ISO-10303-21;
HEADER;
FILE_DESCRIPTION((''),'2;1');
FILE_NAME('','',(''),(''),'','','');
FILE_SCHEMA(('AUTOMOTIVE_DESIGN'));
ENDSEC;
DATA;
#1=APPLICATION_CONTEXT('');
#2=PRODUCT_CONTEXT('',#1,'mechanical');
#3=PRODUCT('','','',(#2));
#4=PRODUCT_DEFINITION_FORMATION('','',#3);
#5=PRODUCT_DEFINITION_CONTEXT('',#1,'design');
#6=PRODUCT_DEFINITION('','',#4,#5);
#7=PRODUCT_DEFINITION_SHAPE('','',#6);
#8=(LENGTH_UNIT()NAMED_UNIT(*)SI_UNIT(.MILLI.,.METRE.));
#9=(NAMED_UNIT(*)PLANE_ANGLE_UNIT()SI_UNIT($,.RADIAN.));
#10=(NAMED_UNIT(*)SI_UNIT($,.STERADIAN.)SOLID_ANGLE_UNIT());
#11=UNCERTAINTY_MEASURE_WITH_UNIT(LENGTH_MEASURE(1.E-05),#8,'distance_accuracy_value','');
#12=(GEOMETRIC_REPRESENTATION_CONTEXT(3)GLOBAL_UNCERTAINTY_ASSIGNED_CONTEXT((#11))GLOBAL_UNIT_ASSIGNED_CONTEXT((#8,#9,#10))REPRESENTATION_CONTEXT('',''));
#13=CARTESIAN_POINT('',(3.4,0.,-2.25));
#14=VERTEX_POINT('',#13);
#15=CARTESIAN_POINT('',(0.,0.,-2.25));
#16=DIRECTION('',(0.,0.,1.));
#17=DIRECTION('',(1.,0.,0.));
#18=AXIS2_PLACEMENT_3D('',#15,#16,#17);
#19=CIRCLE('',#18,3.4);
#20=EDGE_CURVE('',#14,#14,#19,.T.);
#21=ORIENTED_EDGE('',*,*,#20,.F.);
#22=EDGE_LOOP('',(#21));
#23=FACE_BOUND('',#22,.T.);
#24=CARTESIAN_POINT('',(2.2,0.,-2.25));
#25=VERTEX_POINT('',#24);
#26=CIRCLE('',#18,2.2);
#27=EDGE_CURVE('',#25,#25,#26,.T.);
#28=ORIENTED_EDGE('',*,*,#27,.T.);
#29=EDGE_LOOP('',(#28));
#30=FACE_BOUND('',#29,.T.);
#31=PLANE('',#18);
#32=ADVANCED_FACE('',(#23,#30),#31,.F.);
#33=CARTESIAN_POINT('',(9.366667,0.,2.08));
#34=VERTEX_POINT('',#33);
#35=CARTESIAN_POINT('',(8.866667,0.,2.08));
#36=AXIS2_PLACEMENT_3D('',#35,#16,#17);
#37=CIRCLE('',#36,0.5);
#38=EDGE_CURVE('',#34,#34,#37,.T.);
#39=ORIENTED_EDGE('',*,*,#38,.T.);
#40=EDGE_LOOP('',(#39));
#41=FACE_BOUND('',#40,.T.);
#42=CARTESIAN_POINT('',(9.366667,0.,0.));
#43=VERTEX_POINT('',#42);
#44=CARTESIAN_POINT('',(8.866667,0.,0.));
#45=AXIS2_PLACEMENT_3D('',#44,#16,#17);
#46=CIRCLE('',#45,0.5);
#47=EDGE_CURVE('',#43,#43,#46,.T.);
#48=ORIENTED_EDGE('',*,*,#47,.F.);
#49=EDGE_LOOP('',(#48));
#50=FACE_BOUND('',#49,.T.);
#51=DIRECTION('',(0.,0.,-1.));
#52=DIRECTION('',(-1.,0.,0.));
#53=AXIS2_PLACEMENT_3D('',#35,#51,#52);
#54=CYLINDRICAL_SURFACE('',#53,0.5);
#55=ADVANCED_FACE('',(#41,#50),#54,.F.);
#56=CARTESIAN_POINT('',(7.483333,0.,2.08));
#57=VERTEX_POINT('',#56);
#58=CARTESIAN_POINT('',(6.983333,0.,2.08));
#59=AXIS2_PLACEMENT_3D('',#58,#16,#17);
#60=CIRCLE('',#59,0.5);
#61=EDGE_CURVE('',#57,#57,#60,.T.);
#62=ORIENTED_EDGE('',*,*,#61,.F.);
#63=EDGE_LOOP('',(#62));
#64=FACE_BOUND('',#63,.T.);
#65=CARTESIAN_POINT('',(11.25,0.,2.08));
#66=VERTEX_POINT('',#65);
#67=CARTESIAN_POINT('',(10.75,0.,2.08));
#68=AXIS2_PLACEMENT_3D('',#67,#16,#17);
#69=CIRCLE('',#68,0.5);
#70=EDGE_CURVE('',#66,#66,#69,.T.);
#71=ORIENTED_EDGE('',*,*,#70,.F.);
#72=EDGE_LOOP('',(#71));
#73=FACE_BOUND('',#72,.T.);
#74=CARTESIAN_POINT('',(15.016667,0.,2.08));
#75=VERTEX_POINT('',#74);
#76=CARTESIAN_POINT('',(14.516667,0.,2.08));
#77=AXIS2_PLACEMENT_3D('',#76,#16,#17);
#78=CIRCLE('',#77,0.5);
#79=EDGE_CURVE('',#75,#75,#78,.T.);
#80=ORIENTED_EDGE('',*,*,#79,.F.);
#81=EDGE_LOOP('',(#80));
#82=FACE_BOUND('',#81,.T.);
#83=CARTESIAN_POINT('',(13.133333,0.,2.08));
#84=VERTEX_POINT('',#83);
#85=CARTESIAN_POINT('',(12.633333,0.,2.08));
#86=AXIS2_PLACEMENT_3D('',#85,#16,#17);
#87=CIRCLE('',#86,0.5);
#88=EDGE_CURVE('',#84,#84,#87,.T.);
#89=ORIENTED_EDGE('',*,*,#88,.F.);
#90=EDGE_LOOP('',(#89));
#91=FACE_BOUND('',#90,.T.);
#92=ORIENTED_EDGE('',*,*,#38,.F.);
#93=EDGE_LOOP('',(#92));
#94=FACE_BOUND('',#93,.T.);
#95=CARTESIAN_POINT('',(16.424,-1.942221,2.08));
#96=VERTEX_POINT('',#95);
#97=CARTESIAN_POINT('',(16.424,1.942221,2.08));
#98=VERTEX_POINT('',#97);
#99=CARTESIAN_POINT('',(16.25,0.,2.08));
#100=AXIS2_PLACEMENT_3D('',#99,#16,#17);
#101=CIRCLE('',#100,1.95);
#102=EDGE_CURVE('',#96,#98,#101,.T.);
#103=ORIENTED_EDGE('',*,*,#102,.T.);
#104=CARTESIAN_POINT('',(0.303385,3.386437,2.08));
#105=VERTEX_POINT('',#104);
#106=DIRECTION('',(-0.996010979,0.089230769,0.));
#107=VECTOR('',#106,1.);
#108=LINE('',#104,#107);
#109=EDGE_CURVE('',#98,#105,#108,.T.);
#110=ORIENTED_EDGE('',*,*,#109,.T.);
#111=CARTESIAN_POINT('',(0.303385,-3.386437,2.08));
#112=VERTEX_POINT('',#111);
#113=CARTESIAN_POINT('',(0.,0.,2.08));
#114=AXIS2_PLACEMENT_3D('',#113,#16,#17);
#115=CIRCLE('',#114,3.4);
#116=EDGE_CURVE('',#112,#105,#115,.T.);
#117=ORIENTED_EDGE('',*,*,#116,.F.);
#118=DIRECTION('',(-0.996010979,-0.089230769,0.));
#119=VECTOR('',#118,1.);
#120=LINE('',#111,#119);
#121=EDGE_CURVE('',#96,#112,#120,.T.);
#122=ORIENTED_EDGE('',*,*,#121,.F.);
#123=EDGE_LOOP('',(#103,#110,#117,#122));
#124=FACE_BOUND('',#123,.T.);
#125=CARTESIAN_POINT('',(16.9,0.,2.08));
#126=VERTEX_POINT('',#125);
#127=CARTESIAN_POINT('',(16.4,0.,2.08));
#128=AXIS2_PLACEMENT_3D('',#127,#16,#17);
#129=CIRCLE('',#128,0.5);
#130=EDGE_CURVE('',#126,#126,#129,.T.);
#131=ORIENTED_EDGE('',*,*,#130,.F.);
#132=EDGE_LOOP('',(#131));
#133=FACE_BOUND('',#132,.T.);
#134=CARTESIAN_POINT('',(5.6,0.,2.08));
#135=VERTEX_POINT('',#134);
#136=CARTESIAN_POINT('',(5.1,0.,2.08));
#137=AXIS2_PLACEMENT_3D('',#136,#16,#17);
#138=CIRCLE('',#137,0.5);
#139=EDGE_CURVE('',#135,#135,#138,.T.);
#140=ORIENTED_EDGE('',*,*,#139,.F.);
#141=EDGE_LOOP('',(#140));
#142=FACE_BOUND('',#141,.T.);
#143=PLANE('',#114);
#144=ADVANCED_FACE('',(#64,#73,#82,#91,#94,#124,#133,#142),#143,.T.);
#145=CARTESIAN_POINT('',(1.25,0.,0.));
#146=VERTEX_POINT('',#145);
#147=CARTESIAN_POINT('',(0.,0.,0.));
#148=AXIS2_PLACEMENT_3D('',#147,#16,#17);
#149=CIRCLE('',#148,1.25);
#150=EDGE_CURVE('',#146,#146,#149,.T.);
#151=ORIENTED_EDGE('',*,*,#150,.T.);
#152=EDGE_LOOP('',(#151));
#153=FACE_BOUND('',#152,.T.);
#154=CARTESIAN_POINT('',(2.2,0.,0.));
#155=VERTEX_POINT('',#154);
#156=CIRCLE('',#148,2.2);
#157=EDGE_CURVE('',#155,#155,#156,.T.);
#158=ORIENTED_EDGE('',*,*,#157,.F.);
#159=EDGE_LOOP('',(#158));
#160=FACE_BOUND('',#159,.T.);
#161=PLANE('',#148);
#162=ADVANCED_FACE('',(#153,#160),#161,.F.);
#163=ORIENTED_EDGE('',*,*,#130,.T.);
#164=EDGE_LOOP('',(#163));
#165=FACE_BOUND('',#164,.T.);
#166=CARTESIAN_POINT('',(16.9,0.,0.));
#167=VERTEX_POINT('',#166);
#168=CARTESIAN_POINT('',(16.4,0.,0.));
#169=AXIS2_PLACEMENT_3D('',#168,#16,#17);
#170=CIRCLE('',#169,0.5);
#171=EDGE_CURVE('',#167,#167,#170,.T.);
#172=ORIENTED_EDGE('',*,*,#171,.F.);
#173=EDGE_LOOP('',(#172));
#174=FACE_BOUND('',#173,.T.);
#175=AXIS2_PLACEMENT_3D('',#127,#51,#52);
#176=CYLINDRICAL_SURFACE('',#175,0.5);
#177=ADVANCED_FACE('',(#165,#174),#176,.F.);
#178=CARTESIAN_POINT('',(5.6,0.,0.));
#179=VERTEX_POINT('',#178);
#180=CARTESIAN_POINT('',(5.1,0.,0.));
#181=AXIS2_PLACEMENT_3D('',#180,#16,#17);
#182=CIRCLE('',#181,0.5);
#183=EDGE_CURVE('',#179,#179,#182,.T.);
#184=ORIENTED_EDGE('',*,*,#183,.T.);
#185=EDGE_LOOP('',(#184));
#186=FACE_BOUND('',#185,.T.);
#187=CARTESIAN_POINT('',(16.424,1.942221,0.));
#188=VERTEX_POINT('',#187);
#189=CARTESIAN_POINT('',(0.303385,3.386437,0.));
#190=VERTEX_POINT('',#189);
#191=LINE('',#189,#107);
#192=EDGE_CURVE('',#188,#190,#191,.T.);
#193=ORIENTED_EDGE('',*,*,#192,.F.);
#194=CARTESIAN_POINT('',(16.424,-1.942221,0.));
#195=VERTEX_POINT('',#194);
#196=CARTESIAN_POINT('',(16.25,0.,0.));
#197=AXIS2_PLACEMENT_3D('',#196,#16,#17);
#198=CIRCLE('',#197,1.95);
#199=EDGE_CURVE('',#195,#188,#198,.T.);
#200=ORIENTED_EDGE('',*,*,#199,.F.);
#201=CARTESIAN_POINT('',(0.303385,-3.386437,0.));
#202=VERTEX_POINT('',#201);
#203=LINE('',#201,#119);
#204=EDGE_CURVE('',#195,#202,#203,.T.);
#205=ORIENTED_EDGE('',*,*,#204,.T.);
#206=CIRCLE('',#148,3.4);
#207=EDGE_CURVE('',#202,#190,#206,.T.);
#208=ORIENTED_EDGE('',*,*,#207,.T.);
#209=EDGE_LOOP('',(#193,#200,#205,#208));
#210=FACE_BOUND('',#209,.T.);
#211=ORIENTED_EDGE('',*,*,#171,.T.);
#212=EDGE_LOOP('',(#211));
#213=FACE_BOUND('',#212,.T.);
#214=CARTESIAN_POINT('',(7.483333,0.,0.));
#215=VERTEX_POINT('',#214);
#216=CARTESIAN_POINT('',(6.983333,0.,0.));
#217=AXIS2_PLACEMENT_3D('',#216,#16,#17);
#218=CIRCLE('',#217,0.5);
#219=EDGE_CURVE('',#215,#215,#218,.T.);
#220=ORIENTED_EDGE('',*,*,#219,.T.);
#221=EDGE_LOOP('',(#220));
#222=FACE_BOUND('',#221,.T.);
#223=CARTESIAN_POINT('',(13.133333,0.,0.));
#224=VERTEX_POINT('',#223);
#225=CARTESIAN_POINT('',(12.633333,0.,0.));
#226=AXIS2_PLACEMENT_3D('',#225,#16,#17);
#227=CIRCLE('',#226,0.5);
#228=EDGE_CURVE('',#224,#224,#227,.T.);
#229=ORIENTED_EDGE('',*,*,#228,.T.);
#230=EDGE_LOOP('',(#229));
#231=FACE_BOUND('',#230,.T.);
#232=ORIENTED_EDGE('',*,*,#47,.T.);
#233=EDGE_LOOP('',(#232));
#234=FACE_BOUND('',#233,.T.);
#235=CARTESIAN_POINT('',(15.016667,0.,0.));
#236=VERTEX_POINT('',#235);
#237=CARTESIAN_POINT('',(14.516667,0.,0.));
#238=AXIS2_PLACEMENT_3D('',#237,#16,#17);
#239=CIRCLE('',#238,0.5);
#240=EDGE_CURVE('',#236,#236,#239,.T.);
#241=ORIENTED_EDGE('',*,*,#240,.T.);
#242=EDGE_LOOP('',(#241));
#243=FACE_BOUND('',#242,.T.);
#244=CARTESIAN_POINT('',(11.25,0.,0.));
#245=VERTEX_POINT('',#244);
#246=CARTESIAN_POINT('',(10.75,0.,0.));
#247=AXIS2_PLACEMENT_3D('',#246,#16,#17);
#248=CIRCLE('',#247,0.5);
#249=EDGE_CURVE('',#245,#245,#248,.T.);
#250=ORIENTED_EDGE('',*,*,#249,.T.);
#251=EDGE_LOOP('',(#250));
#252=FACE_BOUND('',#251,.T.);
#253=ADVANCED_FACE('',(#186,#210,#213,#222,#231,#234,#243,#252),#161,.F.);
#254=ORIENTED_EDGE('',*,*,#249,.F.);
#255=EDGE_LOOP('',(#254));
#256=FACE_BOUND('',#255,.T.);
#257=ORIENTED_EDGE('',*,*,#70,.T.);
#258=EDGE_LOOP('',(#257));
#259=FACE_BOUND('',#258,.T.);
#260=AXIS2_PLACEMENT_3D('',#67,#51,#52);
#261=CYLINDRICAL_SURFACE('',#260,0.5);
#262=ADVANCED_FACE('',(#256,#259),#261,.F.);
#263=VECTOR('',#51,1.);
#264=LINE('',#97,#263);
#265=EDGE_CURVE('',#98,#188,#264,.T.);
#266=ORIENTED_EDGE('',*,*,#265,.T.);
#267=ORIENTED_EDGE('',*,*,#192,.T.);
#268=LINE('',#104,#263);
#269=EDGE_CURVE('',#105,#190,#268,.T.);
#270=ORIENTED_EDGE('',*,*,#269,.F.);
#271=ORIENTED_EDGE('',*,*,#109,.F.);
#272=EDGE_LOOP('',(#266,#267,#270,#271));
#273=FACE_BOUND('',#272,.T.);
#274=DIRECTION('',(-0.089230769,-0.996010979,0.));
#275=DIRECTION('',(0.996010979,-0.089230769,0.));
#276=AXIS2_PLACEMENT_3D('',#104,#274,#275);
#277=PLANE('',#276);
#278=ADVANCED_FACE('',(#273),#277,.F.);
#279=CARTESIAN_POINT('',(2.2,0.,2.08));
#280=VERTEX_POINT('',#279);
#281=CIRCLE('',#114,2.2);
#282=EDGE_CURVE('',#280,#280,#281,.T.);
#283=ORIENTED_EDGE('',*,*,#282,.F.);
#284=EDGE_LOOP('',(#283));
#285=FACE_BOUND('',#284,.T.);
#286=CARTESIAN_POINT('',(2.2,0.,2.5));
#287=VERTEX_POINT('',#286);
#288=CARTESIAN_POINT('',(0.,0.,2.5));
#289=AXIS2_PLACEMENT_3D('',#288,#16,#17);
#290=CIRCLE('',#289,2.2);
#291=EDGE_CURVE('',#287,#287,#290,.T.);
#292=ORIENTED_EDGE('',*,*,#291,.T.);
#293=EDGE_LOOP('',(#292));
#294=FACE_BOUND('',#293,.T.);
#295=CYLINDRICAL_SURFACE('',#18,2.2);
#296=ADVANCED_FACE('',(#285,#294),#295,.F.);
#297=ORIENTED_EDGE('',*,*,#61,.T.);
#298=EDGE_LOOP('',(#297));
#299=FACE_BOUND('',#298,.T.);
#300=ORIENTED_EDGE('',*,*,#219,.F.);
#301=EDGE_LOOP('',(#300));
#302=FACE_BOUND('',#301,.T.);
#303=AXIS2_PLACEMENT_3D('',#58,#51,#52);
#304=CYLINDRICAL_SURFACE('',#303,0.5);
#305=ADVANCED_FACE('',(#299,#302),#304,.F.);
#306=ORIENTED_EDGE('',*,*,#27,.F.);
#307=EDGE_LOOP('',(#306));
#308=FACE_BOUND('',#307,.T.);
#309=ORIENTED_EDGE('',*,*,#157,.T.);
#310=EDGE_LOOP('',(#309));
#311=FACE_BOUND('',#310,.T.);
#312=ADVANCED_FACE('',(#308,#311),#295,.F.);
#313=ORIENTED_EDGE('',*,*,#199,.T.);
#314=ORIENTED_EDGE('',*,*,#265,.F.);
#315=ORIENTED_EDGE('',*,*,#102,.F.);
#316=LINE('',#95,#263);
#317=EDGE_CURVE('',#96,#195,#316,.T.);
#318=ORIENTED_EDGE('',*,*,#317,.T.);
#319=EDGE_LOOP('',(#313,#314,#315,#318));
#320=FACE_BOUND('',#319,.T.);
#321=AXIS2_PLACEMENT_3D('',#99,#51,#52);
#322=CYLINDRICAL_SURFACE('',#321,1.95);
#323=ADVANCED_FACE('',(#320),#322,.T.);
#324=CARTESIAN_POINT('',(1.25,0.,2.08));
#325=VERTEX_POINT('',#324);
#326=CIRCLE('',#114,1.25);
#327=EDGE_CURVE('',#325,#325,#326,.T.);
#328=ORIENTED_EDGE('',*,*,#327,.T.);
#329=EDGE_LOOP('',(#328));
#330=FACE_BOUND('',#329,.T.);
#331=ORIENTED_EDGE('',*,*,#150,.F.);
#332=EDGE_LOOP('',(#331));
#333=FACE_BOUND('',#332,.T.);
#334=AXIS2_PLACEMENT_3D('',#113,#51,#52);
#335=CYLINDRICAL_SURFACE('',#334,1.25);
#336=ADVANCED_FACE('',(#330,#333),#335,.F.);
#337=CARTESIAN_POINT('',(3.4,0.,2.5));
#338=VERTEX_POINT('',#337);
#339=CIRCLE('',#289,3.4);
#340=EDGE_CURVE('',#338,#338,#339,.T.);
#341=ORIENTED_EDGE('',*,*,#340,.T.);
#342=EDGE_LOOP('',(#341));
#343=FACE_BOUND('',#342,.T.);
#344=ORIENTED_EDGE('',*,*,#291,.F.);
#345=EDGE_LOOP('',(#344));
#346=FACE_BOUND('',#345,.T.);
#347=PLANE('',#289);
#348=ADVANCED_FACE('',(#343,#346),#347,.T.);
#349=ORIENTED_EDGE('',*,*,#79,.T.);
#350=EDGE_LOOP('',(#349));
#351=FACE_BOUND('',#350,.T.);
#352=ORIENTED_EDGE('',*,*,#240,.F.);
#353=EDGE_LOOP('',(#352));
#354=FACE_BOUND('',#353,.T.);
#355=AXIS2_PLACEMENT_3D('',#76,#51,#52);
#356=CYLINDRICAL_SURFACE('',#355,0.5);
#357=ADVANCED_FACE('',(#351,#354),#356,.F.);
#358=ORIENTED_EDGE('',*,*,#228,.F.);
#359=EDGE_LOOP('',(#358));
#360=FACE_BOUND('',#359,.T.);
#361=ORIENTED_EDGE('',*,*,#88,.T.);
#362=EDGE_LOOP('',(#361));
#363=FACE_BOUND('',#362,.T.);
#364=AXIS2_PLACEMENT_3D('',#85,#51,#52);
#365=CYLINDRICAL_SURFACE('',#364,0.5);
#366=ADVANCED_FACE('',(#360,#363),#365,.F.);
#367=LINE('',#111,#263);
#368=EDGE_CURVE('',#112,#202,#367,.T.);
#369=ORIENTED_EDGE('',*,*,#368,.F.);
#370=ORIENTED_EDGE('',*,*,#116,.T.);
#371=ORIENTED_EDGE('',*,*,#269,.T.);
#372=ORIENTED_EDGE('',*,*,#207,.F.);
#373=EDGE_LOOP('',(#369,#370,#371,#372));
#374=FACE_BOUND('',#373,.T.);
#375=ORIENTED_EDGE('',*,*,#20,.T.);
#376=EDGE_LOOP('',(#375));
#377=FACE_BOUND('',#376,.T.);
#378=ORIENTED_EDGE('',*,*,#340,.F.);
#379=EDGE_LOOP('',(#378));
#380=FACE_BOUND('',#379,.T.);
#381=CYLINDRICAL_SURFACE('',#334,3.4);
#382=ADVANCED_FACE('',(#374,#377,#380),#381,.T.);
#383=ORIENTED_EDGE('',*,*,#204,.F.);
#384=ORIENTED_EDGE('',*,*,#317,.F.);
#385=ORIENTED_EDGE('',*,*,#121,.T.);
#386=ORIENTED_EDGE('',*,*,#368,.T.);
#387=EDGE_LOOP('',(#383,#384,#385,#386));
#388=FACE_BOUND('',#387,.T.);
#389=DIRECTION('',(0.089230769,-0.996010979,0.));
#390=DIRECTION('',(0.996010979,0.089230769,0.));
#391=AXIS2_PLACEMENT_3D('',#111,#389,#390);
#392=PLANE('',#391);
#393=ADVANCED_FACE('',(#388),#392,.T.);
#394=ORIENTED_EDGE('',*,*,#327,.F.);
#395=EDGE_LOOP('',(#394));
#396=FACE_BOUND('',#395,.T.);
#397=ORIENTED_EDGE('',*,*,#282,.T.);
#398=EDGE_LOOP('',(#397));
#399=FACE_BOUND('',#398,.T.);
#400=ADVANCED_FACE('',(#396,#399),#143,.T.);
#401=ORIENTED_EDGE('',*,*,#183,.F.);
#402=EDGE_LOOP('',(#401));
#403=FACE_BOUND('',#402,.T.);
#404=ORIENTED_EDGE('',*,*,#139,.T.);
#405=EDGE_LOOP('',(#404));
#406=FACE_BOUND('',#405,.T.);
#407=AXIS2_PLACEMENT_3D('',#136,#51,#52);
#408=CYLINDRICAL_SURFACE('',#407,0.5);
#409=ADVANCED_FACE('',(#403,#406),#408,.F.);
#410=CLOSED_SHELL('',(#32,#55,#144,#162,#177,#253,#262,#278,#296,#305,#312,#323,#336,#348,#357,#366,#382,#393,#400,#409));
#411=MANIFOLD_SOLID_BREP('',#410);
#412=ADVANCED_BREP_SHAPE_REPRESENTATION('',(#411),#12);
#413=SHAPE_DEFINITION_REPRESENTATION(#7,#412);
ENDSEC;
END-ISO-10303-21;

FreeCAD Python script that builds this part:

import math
import FreeCAD as App
import Part
import Sketcher

V = App.Vector

doc = App.newDocument("Part")
params = doc.addObject("Spreadsheet::Sheet", "Params")
for row, (alias, value) in enumerate([
    ("sketch1_diameter", "1 mm"),
    ("sketch1_diameter2", "2.5 mm"),
    ("sketch1_radius", "3.4 mm"),
    ("sketch1_radius2", "1.95 mm"),
    ("pad1_length", "2.08 mm"),
    ("sketch2_diameter", "6.8 mm"),
    ("sketch2_diameter2", "4.4 mm"),
    ("pad2_length", "2.5 mm"),
    ("pad2_length2", "2.25 mm"),
], start=1):
    params.set(f"A{row}", alias)
    params.set(f"B{row}", "=" + value)
    params.setAlias(f"B{row}", alias)

body = doc.addObject("PartDesign::Body", "Body")

# Sketch on XY plane
sketch1 = doc.addObject("Sketcher::SketchObject", "Sketch")
body.addObject(sketch1)
sketch1.AttachmentSupport = (doc.XY_Plane, [""])
sketch1.MapMode = "FlatFace"
sketch1.addGeometry(Part.ArcOfCircle(Part.Circle(V(16.2, 0, 0), V(0, 0, 1), 1.9), math.radians(-85), math.radians(85)), False)
sketch1.addGeometry(Part.LineSegment(V(16.4, 1.9, 0), V(0.3, 3.4, 0)), False)
sketch1.addGeometry(Part.ArcOfCircle(Part.Circle(V(0, 0, 0), V(0, 0, 1), 3.4), math.radians(85), math.radians(275)), False)
sketch1.addGeometry(Part.LineSegment(V(0.3, -3.4, 0), V(16.4, -1.9, 0)), False)
sketch1.addGeometry(Part.Circle(V(0, 0, 0), V(0, 0, 1), 1.2), False)
sketch1.addGeometry(Part.Circle(V(5.1, 0, 0), V(0, 0, 1), 0.5), False)
sketch1.addGeometry(Part.Circle(V(7, 0, 0), V(0, 0, 1), 0.5), False)
sketch1.addGeometry(Part.Circle(V(8.9, 0, 0), V(0, 0, 1), 0.5), False)
sketch1.addGeometry(Part.Circle(V(10.8, 0, 0), V(0, 0, 1), 0.5), False)
sketch1.addGeometry(Part.Circle(V(12.6, 0, 0), V(0, 0, 1), 0.5), False)
sketch1.addGeometry(Part.Circle(V(14.5, 0, 0), V(0, 0, 1), 0.5), False)
sketch1.addGeometry(Part.Circle(V(16.4, 0, 0), V(0, 0, 1), 0.5), False)
sketch1.addConstraint(Sketcher.Constraint("Tangent", 0, 2, 1, 1))
sketch1.addConstraint(Sketcher.Constraint("Tangent", 1, 2, 2, 1))
sketch1.addConstraint(Sketcher.Constraint("Tangent", 2, 2, 3, 1))
sketch1.addConstraint(Sketcher.Constraint("Tangent", 3, 2, 0, 1))
sketch1.addConstraint(Sketcher.Constraint("Coincident", 2, 3, -1, 1))
sketch1.addConstraint(Sketcher.Constraint("Coincident", 4, 3, -1, 1))
sketch1.addConstraint(Sketcher.Constraint("Equal", 5, 6))
sketch1.addConstraint(Sketcher.Constraint("Equal", 6, 7))
sketch1.addConstraint(Sketcher.Constraint("Equal", 7, 8))
sketch1.addConstraint(Sketcher.Constraint("Equal", 8, 9))
sketch1.addConstraint(Sketcher.Constraint("Equal", 9, 10))
sketch1.addConstraint(Sketcher.Constraint("Equal", 10, 11))
sketch1.addConstraint(Sketcher.Constraint("PointOnObject", 0, 3, -1))
sketch1.addConstraint(Sketcher.Constraint("PointOnObject", 5, 3, -1))
sketch1.addConstraint(Sketcher.Constraint("PointOnObject", 6, 3, -1))
sketch1.addConstraint(Sketcher.Constraint("PointOnObject", 7, 3, -1))
sketch1.addConstraint(Sketcher.Constraint("PointOnObject", 8, 3, -1))
sketch1.addConstraint(Sketcher.Constraint("PointOnObject", 9, 3, -1))
sketch1.addConstraint(Sketcher.Constraint("PointOnObject", 10, 3, -1))
sketch1.addConstraint(Sketcher.Constraint("PointOnObject", 11, 3, -1))
sketch1.addConstraint(Sketcher.Constraint("Diameter", 5, 1.0))
sketch1.addConstraint(Sketcher.Constraint("Diameter", 4, 2.5))
sketch1.addConstraint(Sketcher.Constraint("Radius", 2, 3.4))
sketch1.addConstraint(Sketcher.Constraint("Radius", 0, 1.95))
sketch1.addConstraint(Sketcher.Constraint("DistanceX", -1, 1, 5, 3, 5.1))
sketch1.addConstraint(Sketcher.Constraint("DistanceX", -1, 1, 11, 3, 16.4))
sketch1.addConstraint(Sketcher.Constraint("DistanceX", 8, 3, 0, 3, 5.5))
sketch1.addConstraint(Sketcher.Constraint("DistanceX", -1, 1, 0, 3, 16.25))
sketch1.addConstraint(Sketcher.Constraint("DistanceX", 6, 3, 9, 3, 5.65))
sketch1.addConstraint(Sketcher.Constraint("DistanceX", 7, 3, 10, 3, 5.65))
sketch1.addConstraint(Sketcher.Constraint("DistanceX", 1, 2, 6, 3, 6.679949))
sketch1.addConstraint(Sketcher.Constraint("DistanceX", -1, 1, 7, 3, 8.866667))
sketch1.setExpression("Constraints[20]", "Params.sketch1_diameter")
sketch1.setExpression("Constraints[21]", "Params.sketch1_diameter2")
sketch1.setExpression("Constraints[22]", "Params.sketch1_radius")
sketch1.setExpression("Constraints[23]", "Params.sketch1_radius2")
pad1 = doc.addObject("PartDesign::Pad", "Pad")
body.addObject(pad1)
pad1.Profile = sketch1
pad1.setExpression("Length", "Params.pad1_length")

# Sketch on XY plane
sketch2 = doc.addObject("Sketcher::SketchObject", "Sketch001")
body.addObject(sketch2)
sketch2.AttachmentSupport = (doc.XY_Plane, [""])
sketch2.MapMode = "FlatFace"
sketch2.addGeometry(Part.Circle(V(0, 0, 0), V(0, 0, 1), 3.4), False)
sketch2.addGeometry(Part.Circle(V(0, 0, 0), V(0, 0, 1), 2.2), False)
sketch2.addConstraint(Sketcher.Constraint("Coincident", 0, 3, -1, 1))
sketch2.addConstraint(Sketcher.Constraint("Coincident", 1, 3, -1, 1))
sketch2.addConstraint(Sketcher.Constraint("Diameter", 0, 6.8))
sketch2.addConstraint(Sketcher.Constraint("Diameter", 1, 4.4))
sketch2.setExpression("Constraints[2]", "Params.sketch2_diameter")
sketch2.setExpression("Constraints[3]", "Params.sketch2_diameter2")
pad2 = doc.addObject("PartDesign::Pad", "Pad001")
body.addObject(pad2)
pad2.Profile = sketch2
pad2.Type = "TwoLengths"
pad2.setExpression("Length", "Params.pad2_length")
pad2.setExpression("Length2", "Params.pad2_length2")

doc.recompute()
